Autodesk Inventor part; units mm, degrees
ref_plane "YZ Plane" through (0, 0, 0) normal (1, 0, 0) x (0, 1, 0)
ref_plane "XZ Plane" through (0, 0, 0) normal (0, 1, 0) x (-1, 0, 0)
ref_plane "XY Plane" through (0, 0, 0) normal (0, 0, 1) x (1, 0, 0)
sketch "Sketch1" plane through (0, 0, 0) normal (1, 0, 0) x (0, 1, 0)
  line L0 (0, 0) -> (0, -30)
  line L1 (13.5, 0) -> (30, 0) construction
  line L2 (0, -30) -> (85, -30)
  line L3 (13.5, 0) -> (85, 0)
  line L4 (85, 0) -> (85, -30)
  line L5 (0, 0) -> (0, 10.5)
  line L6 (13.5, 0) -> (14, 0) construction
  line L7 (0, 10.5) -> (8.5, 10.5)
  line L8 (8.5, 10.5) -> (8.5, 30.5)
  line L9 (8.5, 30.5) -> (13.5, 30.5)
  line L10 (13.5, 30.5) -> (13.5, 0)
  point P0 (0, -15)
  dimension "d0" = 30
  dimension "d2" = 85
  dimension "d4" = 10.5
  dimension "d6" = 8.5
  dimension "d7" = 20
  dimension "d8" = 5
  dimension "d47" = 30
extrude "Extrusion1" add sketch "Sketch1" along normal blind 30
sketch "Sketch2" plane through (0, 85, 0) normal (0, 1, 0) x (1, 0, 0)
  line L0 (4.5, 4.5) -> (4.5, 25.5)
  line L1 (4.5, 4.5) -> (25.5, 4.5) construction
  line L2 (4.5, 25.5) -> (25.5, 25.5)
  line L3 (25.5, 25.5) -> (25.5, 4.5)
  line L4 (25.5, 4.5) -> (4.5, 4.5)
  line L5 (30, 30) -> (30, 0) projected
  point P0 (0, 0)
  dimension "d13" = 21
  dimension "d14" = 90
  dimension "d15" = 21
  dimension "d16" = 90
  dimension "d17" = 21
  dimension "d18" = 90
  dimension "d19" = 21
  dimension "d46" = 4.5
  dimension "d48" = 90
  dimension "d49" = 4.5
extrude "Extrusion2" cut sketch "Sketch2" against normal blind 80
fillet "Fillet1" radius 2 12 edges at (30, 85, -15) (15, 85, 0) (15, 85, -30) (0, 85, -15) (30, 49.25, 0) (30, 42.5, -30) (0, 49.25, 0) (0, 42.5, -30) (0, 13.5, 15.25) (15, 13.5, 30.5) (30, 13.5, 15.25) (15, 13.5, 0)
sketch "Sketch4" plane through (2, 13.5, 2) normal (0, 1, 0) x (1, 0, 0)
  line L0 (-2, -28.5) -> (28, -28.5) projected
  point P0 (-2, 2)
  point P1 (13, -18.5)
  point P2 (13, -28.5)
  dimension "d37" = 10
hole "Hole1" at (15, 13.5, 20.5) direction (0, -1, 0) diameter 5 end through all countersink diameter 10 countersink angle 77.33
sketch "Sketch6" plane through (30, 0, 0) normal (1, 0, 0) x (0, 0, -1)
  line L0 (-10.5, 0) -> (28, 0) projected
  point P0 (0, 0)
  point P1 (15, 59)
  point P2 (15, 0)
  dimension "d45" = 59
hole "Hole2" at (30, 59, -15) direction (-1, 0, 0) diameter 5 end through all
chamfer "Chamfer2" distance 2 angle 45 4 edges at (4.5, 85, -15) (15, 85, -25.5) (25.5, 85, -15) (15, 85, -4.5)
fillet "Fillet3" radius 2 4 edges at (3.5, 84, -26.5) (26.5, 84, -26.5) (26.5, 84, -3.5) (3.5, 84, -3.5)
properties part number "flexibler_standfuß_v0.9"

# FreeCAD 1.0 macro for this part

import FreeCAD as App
import Part
import Sketcher
from FreeCAD import Vector


def edges_at(feature, points):
    """Names of the edges that pass closest to the given points."""
    edges = feature.Shape.Edges
    near = lambda p: min(range(len(edges)), key=lambda i: edges[i].distToShape(Part.Vertex(*p))[0])
    return sorted({f"Edge{near(p) + 1}" for p in points})

doc = App.newDocument("Part")
body = doc.addObject("PartDesign::Body", "Body")

sketch1 = doc.addObject("Sketcher::SketchObject", "Sketch")
body.addObject(sketch1)
sketch1.AttachmentSupport = (doc.YZ_Plane, [""])
sketch1.MapMode = "FlatFace"
sketch1.addGeometry([
    Part.LineSegment(Vector(0, 10, 0), Vector(0, -30, 0)),
    Part.LineSegment(Vector(0, -30, 0), Vector(85, -30, 0)),
    Part.LineSegment(Vector(85, -30, 0), Vector(85, 0, 0)),
    Part.LineSegment(Vector(85, 0, 0), Vector(14, 0, 0)),
    Part.LineSegment(Vector(14, 0, 0), Vector(14, 30, 0)),
    Part.LineSegment(Vector(14, 30, 0), Vector(8, 30, 0)),
    Part.LineSegment(Vector(8, 30, 0), Vector(8, 10, 0)),
    Part.LineSegment(Vector(8, 10, 0), Vector(0, 10, 0)),
], False)
sketch1.addConstraint([
    Sketcher.Constraint("Coincident", 0, 2, 1, 1),
    Sketcher.Constraint("Coincident", 1, 2, 2, 1),
    Sketcher.Constraint("Coincident", 2, 2, 3, 1),
    Sketcher.Constraint("Coincident", 3, 2, 4, 1),
    Sketcher.Constraint("Coincident", 4, 2, 5, 1),
    Sketcher.Constraint("Coincident", 5, 2, 6, 1),
    Sketcher.Constraint("Coincident", 6, 2, 7, 1),
    Sketcher.Constraint("Coincident", 7, 2, 0, 1),
    Sketcher.Constraint("Vertical", 0),
    Sketcher.Constraint("Horizontal", 1),
    Sketcher.Constraint("Vertical", 2),
    Sketcher.Constraint("Horizontal", 3),
    Sketcher.Constraint("Vertical", 4),
    Sketcher.Constraint("Horizontal", 5),
    Sketcher.Constraint("Vertical", 6),
    Sketcher.Constraint("Horizontal", 7),
    Sketcher.Constraint("PointOnObject", 0, 2, -2),
    Sketcher.Constraint("PointOnObject", 2, 2, -1),
    Sketcher.Constraint("DistanceX", 1, 1, 1, 2, 85.0),
    Sketcher.Constraint("DistanceX", 5, 2, 5, 1, 5.0),
    Sketcher.Constraint("DistanceY", 2, 1, 2, 2, 30.0),
    Sketcher.Constraint("DistanceY", 6, 2, 6, 1, 20.0),
    Sketcher.Constraint("DistanceX", 7, 2, 7, 1, 8.5),
    Sketcher.Constraint("DistanceY", -1, 1, 6, 2, 10.5),
])
pad1 = doc.addObject("PartDesign::Pad", "Pad")
body.addObject(pad1)
pad1.Profile = sketch1
pad1.Length = 30

sketch2 = doc.addObject("Sketcher::SketchObject", "Sketch001")
body.addObject(sketch2)
sketch2.AttachmentSupport = (doc.XZ_Plane, [""])
sketch2.MapMode = "FlatFace"
sketch2.AttachmentOffset = App.Placement(Vector(0, 0, -85), App.Rotation())
sketch2.addGeometry([
    Part.LineSegment(Vector(4, -26, 0), Vector(4, -4, 0)),
    Part.LineSegment(Vector(4, -4, 0), Vector(26, -4, 0)),
    Part.LineSegment(Vector(26, -4, 0), Vector(26, -26, 0)),
    Part.LineSegment(Vector(26, -26, 0), Vector(4, -26, 0)),
], False)
sketch2.addConstraint([
    Sketcher.Constraint("Coincident", 0, 2, 1, 1),
    Sketcher.Constraint("Coincident", 1, 2, 2, 1),
    Sketcher.Constraint("Coincident", 2, 2, 3, 1),
    Sketcher.Constraint("Coincident", 3, 2, 0, 1),
    Sketcher.Constraint("Vertical", 0),
    Sketcher.Constraint("Horizontal", 1),
    Sketcher.Constraint("Vertical", 2),
    Sketcher.Constraint("Horizontal", 3),
    Sketcher.Constraint("Equal", 3, 0),
    Sketcher.Constraint("DistanceX", 1, 1, 1, 2, 21.0),
    Sketcher.Constraint("DistanceX", -1, 1, 0, 2, 4.5),
    Sketcher.Constraint("DistanceY", 0, 2, -1, 1, 4.5),
])
pocket1 = doc.addObject("PartDesign::Pocket", "Pocket")
body.addObject(pocket1)
pocket1.Profile = sketch2
pocket1.Length = 80
pocket1.Reversed = True
doc.recompute()

fillet = doc.addObject("PartDesign::Fillet", "Fillet")
body.addObject(fillet)
fillet.Base = (pocket1, edges_at(pocket1, [
    (30, 85, -15),
    (15, 85, 0),
    (15, 85, -30),
    (0, 85, -15),
    (30, 49.25, 0),
    (30, 42.5, -30),
    (0, 49.25, 0),
    (0, 42.5, -30),
    (0, 13.5, 15.25),
    (15, 13.5, 30.5),
    (30, 13.5, 15.25),
    (15, 13.5, 0),
]))
fillet.Radius = 2

sketch3 = doc.addObject("Sketcher::SketchObject", "Sketch002")
body.addObject(sketch3)
sketch3.AttachmentSupport = (doc.XZ_Plane, [""])
sketch3.MapMode = "FlatFace"
sketch3.AttachmentOffset = App.Placement(Vector(0, 0, -13.5), App.Rotation())
sketch3.addGeometry(Part.Circle(Vector(15, 20.5, 0), Vector(0, 0, 1), 2.5), False)
sketch3.addConstraint([
    Sketcher.Constraint("Diameter", 0, 5.0),
    Sketcher.Constraint("DistanceX", -1, 1, 0, 3, 15.0),
    Sketcher.Constraint("DistanceY", -1, 1, 0, 3, 20.5),
])
doc.recompute()
hole = doc.addObject("PartDesign::Hole", "Hole")
body.addObject(hole)
hole.Profile = sketch3
hole.ThreadType = "None"
hole.Diameter = 5
hole.DepthType = "ThroughAll"
hole.HoleCutType = "Countersink"
hole.HoleCutDiameter = 10
hole.HoleCutCountersinkAngle = 77.33
hole.Reversed = True

sketch4 = doc.addObject("Sketcher::SketchObject", "Sketch003")
body.addObject(sketch4)
sketch4.AttachmentSupport = (doc.YZ_Plane, [""])
sketch4.MapMode = "FlatFace"
sketch4.AttachmentOffset = App.Placement(Vector(0, 0, 30), App.Rotation())
sketch4.addGeometry(Part.Circle(Vector(59, -15, 0), Vector(0, 0, 1), 2.5), False)
sketch4.addConstraint([
    Sketcher.Constraint("Diameter", 0, 5.0),
    Sketcher.Constraint("DistanceX", -1, 1, 0, 3, 59.0),
    Sketcher.Constraint("DistanceY", 0, 3, -1, 1, 15.0),
])
doc.recompute()
hole2 = doc.addObject("PartDesign::Hole", "Hole001")
body.addObject(hole2)
hole2.Profile = sketch4
hole2.ThreadType = "None"
hole2.Diameter = 5
hole2.DepthType = "ThroughAll"
doc.recompute()

chamfer = doc.addObject("PartDesign::Chamfer", "Chamfer")
body.addObject(chamfer)
chamfer.Base = (hole2, edges_at(hole2, [
    (4.5, 85, -15),
    (15, 85, -25.5),
    (25.5, 85, -15),
    (15, 85, -4.5),
]))
chamfer.Size = 2
doc.recompute()

fillet2 = doc.addObject("PartDesign::Fillet", "Fillet001")
body.addObject(fillet2)
fillet2.Base = (chamfer, edges_at(chamfer, [
    (3.5, 84, -26.5),
    (26.5, 84, -26.5),
    (26.5, 84, -3.5),
    (3.5, 84, -3.5),
]))
fillet2.Radius = 2

doc.recompute()
